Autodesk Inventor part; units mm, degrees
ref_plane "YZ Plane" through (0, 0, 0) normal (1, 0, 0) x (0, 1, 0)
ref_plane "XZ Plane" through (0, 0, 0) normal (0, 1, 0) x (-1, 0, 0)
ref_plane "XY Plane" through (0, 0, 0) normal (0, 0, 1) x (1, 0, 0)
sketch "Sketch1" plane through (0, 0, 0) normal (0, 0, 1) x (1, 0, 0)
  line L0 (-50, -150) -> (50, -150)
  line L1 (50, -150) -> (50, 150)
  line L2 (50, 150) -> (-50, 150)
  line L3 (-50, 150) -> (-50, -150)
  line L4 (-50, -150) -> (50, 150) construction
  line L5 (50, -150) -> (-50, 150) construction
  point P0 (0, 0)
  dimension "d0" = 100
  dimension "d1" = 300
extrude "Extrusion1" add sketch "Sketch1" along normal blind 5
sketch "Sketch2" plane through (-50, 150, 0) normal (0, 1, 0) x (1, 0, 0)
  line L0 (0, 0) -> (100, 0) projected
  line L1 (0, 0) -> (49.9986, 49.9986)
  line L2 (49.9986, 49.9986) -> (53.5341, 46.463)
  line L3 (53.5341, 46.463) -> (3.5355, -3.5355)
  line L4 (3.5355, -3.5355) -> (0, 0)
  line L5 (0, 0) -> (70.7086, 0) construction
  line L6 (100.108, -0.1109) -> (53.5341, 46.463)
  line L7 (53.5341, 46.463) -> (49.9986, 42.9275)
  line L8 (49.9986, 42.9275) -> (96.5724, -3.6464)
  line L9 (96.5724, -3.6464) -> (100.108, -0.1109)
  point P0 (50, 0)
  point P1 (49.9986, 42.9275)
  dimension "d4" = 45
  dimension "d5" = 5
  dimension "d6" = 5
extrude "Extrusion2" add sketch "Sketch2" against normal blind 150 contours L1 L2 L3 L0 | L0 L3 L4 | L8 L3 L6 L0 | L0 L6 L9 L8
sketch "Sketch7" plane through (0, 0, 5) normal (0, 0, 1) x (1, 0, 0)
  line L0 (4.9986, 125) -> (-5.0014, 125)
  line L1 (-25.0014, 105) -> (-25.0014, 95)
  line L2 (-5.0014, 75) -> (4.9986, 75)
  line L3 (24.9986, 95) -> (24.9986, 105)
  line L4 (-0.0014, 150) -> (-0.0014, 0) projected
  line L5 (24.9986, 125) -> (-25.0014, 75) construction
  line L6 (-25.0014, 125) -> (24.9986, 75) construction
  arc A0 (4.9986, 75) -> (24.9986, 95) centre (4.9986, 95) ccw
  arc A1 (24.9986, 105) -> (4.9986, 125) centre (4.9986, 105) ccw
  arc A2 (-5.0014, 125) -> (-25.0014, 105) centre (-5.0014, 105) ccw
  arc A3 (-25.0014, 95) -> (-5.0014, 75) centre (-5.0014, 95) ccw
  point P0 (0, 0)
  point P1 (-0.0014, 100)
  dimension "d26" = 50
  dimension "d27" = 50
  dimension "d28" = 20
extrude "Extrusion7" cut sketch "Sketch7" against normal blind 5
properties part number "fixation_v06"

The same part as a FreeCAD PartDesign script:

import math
import FreeCAD as App
import Part
import Sketcher

V = App.Vector

doc = App.newDocument("Part")
params = doc.addObject("Spreadsheet::Sheet", "Params")
for row, (alias, value) in enumerate([
    ("sketch1_width", "100 mm"),
    ("sketch1_height", "300 mm"),
    ("pad1_length", "5 mm"),
    ("sketch2_length", "5 mm"),
    ("pad2_length", "150 mm"),
    ("sketch3_radius", "20 mm"),
    ("sketch3_width", "10 mm"),
    ("pocket1_length", "5 mm"),
], start=1):
    params.set(f"A{row}", alias)
    params.set(f"B{row}", "=" + value)
    params.setAlias(f"B{row}", alias)

body = doc.addObject("PartDesign::Body", "Body")

# Sketch on XY plane
sketch1 = body.newObject("Sketcher::SketchObject", "Sketch")
sketch1.AttachmentSupport = (doc.getObject("XY_Plane"), [""])
sketch1.MapMode = "FlatFace"
sketch1.addGeometry([
    Part.LineSegment(V(-50, 150, 0), V(-50, -150, 0)),
    Part.LineSegment(V(-50, -150, 0), V(50, -150, 0)),
    Part.LineSegment(V(50, -150, 0), V(50, 150, 0)),
    Part.LineSegment(V(50, 150, 0), V(-50, 150, 0)),
], False)
sketch1.addConstraint([
    Sketcher.Constraint("Coincident", 0, 2, 1, 1),
    Sketcher.Constraint("Coincident", 1, 2, 2, 1),
    Sketcher.Constraint("Coincident", 2, 2, 3, 1),
    Sketcher.Constraint("Coincident", 3, 2, 0, 1),
    Sketcher.Constraint("Vertical", 0),
    Sketcher.Constraint("Horizontal", 1),
    Sketcher.Constraint("Vertical", 2),
    Sketcher.Constraint("Horizontal", 3),
    Sketcher.Constraint("Symmetric", 0, 2, 2, 2, -1, 1),
    Sketcher.Constraint("DistanceX", 1, 1, 1, 2, 100.0),
    Sketcher.Constraint("DistanceY", 0, 2, 0, 1, 300.0),
])
sketch1.setExpression("Constraints[9]", "Params.sketch1_width")
sketch1.setExpression("Constraints[10]", "Params.sketch1_height")
pad1 = body.newObject("PartDesign::Pad", "Pad")
pad1.Profile = sketch1
pad1.setExpression("Length", "Params.pad1_length")

# Sketch on XZ plane
sketch2 = body.newObject("Sketcher::SketchObject", "Sketch001")
sketch2.AttachmentSupport = (doc.getObject("XZ_Plane"), [""])
sketch2.MapMode = "FlatFace"
sketch2.AttachmentOffset = App.Placement(V(0, 0, -150), App.Rotation())
sketch2.addGeometry([
    Part.LineSegment(V(-0.0014, -49.9986, 0), V(-50, 0, 0)),  # 0
    Part.LineSegment(V(-50, 0, 0), V(-46.4645, 3.5355, 0)),  # 1
    Part.LineSegment(V(-46.4645, 3.5355, 0), V(-0.0014, -42.9275, 0)),  # 2
    Part.LineSegment(V(-0.0014, -42.9275, 0), V(46.5724, 3.6464, 0)),  # 3
    Part.LineSegment(V(46.5724, 3.6464, 0), V(50.108, 0.1109, 0)),  # 4
    Part.LineSegment(V(50.108, 0.1109, 0), V(3.5341, -46.463, 0)),  # 5
    Part.LineSegment(V(3.5341, -46.463, 0), V(-0.0014, -49.9986, 0)),  # 6
], False)
sketch2.addConstraint([
    Sketcher.Constraint("Coincident", 0, 2, 1, 1),
    Sketcher.Constraint("Coincident", 1, 2, 2, 1),
    Sketcher.Constraint("Coincident", 2, 2, 3, 1),
    Sketcher.Constraint("Coincident", 3, 2, 4, 1),
    Sketcher.Constraint("Coincident", 4, 2, 5, 1),
    Sketcher.Constraint("Coincident", 5, 2, 6, 1),
    Sketcher.Constraint("Coincident", 6, 2, 0, 1),
    Sketcher.Constraint("PointOnObject", 0, 2, -1),
    Sketcher.Constraint("Perpendicular", 0, 1),
    Sketcher.Constraint("Perpendicular", 1, 2),
    Sketcher.Constraint("Perpendicular", 2, 3),
    Sketcher.Constraint("Perpendicular", 3, 4),
    Sketcher.Constraint("Perpendicular", 4, 5),
    Sketcher.Constraint("Parallel", 5, 6),
    Sketcher.Constraint("Vertical", 2, 2, 6, 2),
    Sketcher.Constraint("Equal", 1, 4),
    Sketcher.Constraint("Equal", 3, 5),
    Sketcher.Constraint("Distance", 1, 5.0),
    Sketcher.Constraint("DistanceX", 0, 2, -1, 1, 50.0),
    Sketcher.Constraint("DistanceX", -1, 1, 4, 2, 50.108),
    Sketcher.Constraint("DistanceY", -1, 1, 4, 2, 0.111),
])
sketch2.setExpression("Constraints[17]", "Params.sketch2_length")
pad2 = body.newObject("PartDesign::Pad", "Pad001")
pad2.Profile = sketch2
pad2.setExpression("Length", "Params.pad2_length")

# Sketch on XY plane
sketch3 = body.newObject("Sketcher::SketchObject", "Sketch002")
sketch3.AttachmentSupport = (doc.getObject("XY_Plane"), [""])
sketch3.MapMode = "FlatFace"
sketch3.AttachmentOffset = App.Placement(V(0, 0, 5), App.Rotation())
sketch3.addGeometry([
    Part.ArcOfCircle(Part.Circle(V(4.9986, 105, 0), V(0, 0, 1), 20), math.radians(0), math.radians(90)),  # 0
    Part.LineSegment(V(4.9986, 125, 0), V(-5.0014, 125, 0)),  # 1
    Part.ArcOfCircle(Part.Circle(V(-5.0014, 105, 0), V(0, 0, 1), 20), math.radians(90), math.radians(180)),  # 2
    Part.LineSegment(V(-25.0014, 105, 0), V(-25.0014, 95, 0)),  # 3
    Part.ArcOfCircle(Part.Circle(V(-5.0014, 95, 0), V(0, 0, 1), 20), math.radians(180), math.radians(270)),  # 4
    Part.LineSegment(V(-5.0014, 75, 0), V(4.9986, 75, 0)),  # 5
    Part.ArcOfCircle(Part.Circle(V(4.9986, 95, 0), V(0, 0, 1), 20), math.radians(-90), math.radians(0)),  # 6
    Part.LineSegment(V(24.9986, 95, 0), V(24.9986, 105, 0)),  # 7
], False)
sketch3.addConstraint([
    Sketcher.Constraint("Tangent", 0, 2, 1, 1),
    Sketcher.Constraint("Tangent", 1, 2, 2, 1),
    Sketcher.Constraint("Tangent", 2, 2, 3, 1),
    Sketcher.Constraint("Tangent", 3, 2, 4, 1),
    Sketcher.Constraint("Tangent", 4, 2, 5, 1),
    Sketcher.Constraint("Tangent", 5, 2, 6, 1),
    Sketcher.Constraint("Tangent", 6, 2, 7, 1),
    Sketcher.Constraint("Tangent", 7, 2, 0, 1),
    Sketcher.Constraint("Horizontal", 1),
    Sketcher.Constraint("Vertical", 3),
    Sketcher.Constraint("Horizontal", 5),
    Sketcher.Constraint("Vertical", 7),
    Sketcher.Constraint("Equal", 0, 2),
    Sketcher.Constraint("Equal", 2, 4),
    Sketcher.Constraint("Equal", 4, 6),
    Sketcher.Constraint("Equal", 5, 3),
    Sketcher.Constraint("Radius", 0, 20.0),
    Sketcher.Constraint("DistanceX", 1, 2, 1, 1, 10.0),
    Sketcher.Constraint("DistanceY", -1, 1, 0, 3, 105.0),
    Sketcher.Constraint("DistanceX", -1, 1, 0, 3, 4.9986),
])
sketch3.setExpression("Constraints[16]", "Params.sketch3_radius")
sketch3.setExpression("Constraints[17]", "Params.sketch3_width")
pocket1 = body.newObject("PartDesign::Pocket", "Pocket")
pocket1.Profile = sketch3
pocket1.setExpression("Length", "Params.pocket1_length")

doc.recompute()
